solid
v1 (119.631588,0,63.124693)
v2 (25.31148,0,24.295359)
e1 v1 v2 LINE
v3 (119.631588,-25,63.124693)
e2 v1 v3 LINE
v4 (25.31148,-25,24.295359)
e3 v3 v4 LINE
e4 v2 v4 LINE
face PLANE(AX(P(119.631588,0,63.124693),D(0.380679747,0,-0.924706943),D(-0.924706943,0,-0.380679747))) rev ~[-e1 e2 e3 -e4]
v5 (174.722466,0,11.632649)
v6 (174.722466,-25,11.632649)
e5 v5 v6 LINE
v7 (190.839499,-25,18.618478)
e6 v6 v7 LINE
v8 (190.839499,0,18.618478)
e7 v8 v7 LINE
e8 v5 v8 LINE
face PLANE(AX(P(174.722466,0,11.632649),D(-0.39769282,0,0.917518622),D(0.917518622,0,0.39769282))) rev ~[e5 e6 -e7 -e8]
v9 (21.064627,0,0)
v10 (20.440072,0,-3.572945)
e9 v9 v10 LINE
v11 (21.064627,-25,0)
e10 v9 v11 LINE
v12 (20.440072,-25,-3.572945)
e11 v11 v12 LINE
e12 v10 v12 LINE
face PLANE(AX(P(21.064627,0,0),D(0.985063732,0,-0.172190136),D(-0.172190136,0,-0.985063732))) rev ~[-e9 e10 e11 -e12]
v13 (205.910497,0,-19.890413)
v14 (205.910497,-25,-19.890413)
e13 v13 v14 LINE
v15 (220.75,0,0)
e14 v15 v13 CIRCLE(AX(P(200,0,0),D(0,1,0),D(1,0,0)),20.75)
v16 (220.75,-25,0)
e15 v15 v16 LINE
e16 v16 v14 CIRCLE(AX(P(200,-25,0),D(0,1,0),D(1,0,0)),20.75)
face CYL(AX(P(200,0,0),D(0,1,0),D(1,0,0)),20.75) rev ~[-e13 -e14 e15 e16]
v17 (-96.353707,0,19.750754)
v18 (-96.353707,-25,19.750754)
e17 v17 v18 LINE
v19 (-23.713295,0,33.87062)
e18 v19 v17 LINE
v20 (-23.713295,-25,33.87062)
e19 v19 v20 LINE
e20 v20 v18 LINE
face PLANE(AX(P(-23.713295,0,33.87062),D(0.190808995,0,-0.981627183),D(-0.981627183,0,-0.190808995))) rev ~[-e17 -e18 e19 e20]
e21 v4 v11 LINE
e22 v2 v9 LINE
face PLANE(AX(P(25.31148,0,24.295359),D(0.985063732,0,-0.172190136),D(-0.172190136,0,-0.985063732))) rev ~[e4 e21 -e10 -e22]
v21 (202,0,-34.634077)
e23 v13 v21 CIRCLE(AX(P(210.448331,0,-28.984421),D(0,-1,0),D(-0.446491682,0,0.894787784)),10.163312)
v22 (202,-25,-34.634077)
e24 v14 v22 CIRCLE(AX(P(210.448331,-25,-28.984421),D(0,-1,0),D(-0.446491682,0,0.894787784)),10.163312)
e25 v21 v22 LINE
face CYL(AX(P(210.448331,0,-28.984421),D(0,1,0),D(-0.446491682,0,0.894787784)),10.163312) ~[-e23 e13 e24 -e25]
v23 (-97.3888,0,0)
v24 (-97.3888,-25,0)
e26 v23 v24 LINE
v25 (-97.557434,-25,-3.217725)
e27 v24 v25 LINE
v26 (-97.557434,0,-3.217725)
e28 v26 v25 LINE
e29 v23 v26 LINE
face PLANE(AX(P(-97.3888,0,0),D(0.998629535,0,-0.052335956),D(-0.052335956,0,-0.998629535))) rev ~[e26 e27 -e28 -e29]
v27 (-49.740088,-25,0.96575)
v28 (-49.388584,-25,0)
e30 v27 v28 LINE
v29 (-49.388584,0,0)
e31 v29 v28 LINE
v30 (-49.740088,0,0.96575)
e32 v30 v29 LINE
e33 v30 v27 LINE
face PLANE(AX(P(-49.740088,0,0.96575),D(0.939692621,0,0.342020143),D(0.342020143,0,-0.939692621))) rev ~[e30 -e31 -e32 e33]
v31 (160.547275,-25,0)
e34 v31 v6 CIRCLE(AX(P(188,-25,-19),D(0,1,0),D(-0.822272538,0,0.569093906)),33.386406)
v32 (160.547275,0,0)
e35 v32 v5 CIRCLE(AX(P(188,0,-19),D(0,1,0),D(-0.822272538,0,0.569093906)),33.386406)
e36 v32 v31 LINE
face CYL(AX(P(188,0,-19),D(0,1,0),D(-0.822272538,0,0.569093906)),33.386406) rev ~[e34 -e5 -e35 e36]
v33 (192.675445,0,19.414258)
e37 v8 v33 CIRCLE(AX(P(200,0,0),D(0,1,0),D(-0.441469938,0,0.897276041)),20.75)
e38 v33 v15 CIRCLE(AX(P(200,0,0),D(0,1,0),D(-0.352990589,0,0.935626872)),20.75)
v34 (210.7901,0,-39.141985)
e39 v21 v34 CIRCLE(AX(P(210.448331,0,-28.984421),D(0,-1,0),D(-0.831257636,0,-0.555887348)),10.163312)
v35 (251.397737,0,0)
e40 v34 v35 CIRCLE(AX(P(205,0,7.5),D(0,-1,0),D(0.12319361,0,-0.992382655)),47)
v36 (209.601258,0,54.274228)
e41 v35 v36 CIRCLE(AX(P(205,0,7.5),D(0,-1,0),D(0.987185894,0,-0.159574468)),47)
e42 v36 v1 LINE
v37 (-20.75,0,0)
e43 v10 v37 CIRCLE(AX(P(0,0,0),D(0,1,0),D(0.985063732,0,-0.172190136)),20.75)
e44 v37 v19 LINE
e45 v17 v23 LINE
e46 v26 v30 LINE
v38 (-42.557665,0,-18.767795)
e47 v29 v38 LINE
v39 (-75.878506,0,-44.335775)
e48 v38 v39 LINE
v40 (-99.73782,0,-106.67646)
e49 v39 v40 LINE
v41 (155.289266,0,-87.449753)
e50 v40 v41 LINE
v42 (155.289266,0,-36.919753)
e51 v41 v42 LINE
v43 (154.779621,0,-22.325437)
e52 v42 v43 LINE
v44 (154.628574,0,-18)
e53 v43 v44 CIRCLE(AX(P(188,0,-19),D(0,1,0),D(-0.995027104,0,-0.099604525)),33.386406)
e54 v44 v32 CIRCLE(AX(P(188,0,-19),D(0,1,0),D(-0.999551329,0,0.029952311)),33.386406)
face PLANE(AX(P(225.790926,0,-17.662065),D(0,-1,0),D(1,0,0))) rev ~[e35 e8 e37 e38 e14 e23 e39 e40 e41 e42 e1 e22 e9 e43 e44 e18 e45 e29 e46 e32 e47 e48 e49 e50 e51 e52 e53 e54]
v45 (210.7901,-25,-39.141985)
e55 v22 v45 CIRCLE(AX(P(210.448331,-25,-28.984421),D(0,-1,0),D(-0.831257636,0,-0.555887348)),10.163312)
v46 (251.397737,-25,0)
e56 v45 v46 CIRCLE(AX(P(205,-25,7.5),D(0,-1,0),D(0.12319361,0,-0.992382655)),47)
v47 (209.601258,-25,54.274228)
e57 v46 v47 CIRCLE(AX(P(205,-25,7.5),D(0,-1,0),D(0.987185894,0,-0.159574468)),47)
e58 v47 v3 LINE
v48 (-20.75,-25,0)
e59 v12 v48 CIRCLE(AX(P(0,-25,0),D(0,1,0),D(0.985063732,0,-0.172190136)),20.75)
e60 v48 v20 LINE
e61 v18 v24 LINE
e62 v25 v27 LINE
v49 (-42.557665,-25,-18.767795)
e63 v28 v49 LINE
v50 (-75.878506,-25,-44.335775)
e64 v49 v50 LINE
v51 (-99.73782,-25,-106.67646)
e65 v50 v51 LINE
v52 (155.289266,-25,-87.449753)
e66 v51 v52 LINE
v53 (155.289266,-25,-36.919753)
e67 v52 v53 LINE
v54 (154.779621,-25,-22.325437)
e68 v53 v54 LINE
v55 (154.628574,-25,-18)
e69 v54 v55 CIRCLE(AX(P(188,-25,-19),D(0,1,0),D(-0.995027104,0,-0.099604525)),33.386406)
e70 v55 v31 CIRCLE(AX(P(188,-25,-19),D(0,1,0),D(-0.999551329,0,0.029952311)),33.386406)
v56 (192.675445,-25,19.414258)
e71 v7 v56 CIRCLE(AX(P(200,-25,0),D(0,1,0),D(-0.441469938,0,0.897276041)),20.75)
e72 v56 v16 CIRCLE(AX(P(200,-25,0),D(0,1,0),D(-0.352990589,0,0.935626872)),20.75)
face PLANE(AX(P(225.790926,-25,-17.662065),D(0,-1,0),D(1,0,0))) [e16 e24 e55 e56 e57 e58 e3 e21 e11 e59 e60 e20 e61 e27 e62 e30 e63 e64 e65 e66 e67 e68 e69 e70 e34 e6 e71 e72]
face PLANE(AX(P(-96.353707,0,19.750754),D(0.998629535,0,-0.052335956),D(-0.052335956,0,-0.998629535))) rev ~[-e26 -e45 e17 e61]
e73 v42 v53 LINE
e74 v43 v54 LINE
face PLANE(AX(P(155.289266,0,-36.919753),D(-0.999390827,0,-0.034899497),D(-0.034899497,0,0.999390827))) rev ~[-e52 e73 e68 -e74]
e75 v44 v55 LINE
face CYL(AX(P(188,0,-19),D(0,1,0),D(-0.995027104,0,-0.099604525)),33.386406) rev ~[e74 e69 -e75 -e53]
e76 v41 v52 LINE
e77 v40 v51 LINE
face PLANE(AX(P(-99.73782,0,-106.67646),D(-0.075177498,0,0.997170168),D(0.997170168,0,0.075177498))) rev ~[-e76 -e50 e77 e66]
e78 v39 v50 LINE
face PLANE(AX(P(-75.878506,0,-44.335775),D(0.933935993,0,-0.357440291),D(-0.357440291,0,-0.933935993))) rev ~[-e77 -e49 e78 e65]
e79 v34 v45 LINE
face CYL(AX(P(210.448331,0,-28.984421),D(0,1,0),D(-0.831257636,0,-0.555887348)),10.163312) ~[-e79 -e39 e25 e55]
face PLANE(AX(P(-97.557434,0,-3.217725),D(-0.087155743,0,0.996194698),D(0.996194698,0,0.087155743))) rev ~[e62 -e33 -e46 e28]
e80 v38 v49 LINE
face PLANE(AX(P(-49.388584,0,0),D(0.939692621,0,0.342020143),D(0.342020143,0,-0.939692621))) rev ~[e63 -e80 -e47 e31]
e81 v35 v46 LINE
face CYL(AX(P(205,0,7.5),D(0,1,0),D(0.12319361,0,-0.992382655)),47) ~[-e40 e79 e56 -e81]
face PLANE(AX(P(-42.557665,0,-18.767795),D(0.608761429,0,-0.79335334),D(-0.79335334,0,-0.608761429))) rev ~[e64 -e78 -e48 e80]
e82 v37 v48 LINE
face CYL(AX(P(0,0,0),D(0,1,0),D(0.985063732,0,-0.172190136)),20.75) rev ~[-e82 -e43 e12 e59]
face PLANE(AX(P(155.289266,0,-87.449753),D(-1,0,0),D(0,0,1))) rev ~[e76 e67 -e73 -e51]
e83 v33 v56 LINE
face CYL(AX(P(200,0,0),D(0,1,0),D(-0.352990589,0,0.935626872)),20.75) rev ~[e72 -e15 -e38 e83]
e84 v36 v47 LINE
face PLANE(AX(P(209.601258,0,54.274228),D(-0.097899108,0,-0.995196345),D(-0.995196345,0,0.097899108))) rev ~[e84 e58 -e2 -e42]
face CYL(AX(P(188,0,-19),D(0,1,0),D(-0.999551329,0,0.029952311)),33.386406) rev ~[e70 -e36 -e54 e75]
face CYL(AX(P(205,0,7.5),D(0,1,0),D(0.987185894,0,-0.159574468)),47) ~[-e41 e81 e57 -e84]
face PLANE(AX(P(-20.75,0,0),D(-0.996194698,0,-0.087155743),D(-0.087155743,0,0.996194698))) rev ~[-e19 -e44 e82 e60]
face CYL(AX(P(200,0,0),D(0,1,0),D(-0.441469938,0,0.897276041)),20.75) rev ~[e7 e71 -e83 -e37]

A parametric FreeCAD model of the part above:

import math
import FreeCAD as App
import Part
import Sketcher
from FreeCAD import Vector
Q = App.Units.Quantity

doc = App.newDocument("Part")
body = doc.addObject("PartDesign::Body", "Body")

# Sketch on XZ plane
sketch1 = body.newObject("Sketcher::SketchObject", "Sketch")
sketch1.AttachmentSupport = (doc.getObject("XZ_Plane"), [""])
sketch1.MapMode = "FlatFace"
sketch1.addGeometry(Part.ArcOfCircle(Part.Circle(Vector(205, 7.5, 0), Vector(0, 0, 1), 47), math.radians(-83), math.radians(-9)), False)
sketch1.addGeometry(Part.ArcOfCircle(Part.Circle(Vector(205, 7.5, 0), Vector(0, 0, 1), 47), math.radians(-9), math.radians(84)), False)
sketch1.addGeometry(Part.LineSegment(Vector(209.6, 54.3, 0), Vector(119.6, 63.1, 0)), False)
sketch1.addGeometry(Part.LineSegment(Vector(119.6, 63.1, 0), Vector(25.3, 24.3, 0)), False)
sketch1.addGeometry(Part.LineSegment(Vector(25.3, 24.3, 0), Vector(21.1, 0, 0)), False)
sketch1.addGeometry(Part.LineSegment(Vector(21.1, 0, 0), Vector(20.4, -3.6, 0)), False)
sketch1.addGeometry(Part.ArcOfCircle(Part.Circle(Vector(0, 0, 0), Vector(0, 0, 1), 20.8), math.radians(180), math.radians(350)), False)
sketch1.addGeometry(Part.LineSegment(Vector(-20.8, 0, 0), Vector(-23.7, 33.9, 0)), False)
sketch1.addGeometry(Part.LineSegment(Vector(-23.7, 33.9, 0), Vector(-96.4, 19.8, 0)), False)
sketch1.addGeometry(Part.LineSegment(Vector(-96.4, 19.8, 0), Vector(-97.4, 0, 0)), False)
sketch1.addGeometry(Part.LineSegment(Vector(-97.4, 0, 0), Vector(-97.6, -3.2, 0)), False)
sketch1.addGeometry(Part.LineSegment(Vector(-97.6, -3.2, 0), Vector(-49.7, 1, 0)), False)
sketch1.addGeometry(Part.LineSegment(Vector(-49.7, 1, 0), Vector(-49.4, 0, 0)), False)
sketch1.addGeometry(Part.LineSegment(Vector(-49.4, 0, 0), Vector(-42.6, -18.8, 0)), False)
sketch1.addGeometry(Part.LineSegment(Vector(-42.6, -18.8, 0), Vector(-75.9, -44.3, 0)), False)
sketch1.addGeometry(Part.LineSegment(Vector(-75.9, -44.3, 0), Vector(-99.7, -106.7, 0)), False)
sketch1.addGeometry(Part.LineSegment(Vector(-99.7, -106.7, 0), Vector(155.3, -87.4, 0)), False)
sketch1.addGeometry(Part.LineSegment(Vector(155.3, -87.4, 0), Vector(155.3, -36.9, 0)), False)
sketch1.addGeometry(Part.LineSegment(Vector(155.3, -36.9, 0), Vector(154.8, -22.3, 0)), False)
sketch1.addGeometry(Part.ArcOfCircle(Part.Circle(Vector(188, -19, 0), Vector(0, 0, 1), 33.4), math.radians(178.28), math.radians(185.72)), False)
sketch1.addGeometry(Part.ArcOfCircle(Part.Circle(Vector(188, -19, 0), Vector(0, 0, 1), 33.4), math.radians(145), math.radians(178)), False)
sketch1.addGeometry(Part.ArcOfCircle(Part.Circle(Vector(188, -19, 0), Vector(0, 0, 1), 33.4), math.radians(113), math.radians(145)), False)
sketch1.addGeometry(Part.LineSegment(Vector(174.7, 11.6, 0), Vector(190.8, 18.6, 0)), False)
sketch1.addGeometry(Part.ArcOfCircle(Part.Circle(Vector(200, 0, 0), Vector(0, 0, 1), 20.8), math.radians(110.67), math.radians(116.2)), False)
sketch1.addGeometry(Part.ArcOfCircle(Part.Circle(Vector(200, 0, 0), Vector(0, 0, 1), 20.8), math.radians(0), math.radians(111)), False)
sketch1.addGeometry(Part.ArcOfCircle(Part.Circle(Vector(200, 0, 0), Vector(0, 0, 1), 20.8), math.radians(-73), math.radians(0)), False)
sketch1.addGeometry(Part.ArcOfCircle(Part.Circle(Vector(210.4, -29, 0), Vector(0, 0, 1), 10.2), math.radians(117), math.radians(214)), False)
sketch1.addGeometry(Part.ArcOfCircle(Part.Circle(Vector(210.4, -29, 0), Vector(0, 0, 1), 10.2), math.radians(-146), math.radians(-88)), False)
sketch1.addConstraint(Sketcher.Constraint("Tangent", 0, 2, 1, 1))
sketch1.addConstraint(Sketcher.Constraint("Tangent", 1, 2, 2, 1))
sketch1.addConstraint(Sketcher.Constraint("Coincident", 2, 2, 3, 1))
sketch1.addConstraint(Sketcher.Constraint("Coincident", 3, 2, 4, 1))
sketch1.addConstraint(Sketcher.Constraint("Coincident", 4, 2, 5, 1))
sketch1.addConstraint(Sketcher.Constraint("Tangent", 5, 2, 6, 2))
sketch1.addConstraint(Sketcher.Constraint("Coincident", 6, 1, 7, 1))
sketch1.addConstraint(Sketcher.Constraint("Coincident", 7, 2, 8, 1))
sketch1.addConstraint(Sketcher.Constraint("Coincident", 8, 2, 9, 1))
sketch1.addConstraint(Sketcher.Constraint("Coincident", 9, 2, 10, 1))
sketch1.addConstraint(Sketcher.Constraint("Coincident", 10, 2, 11, 1))
sketch1.addConstraint(Sketcher.Constraint("Coincident", 11, 2, 12, 1))
sketch1.addConstraint(Sketcher.Constraint("Coincident", 12, 2, 13, 1))
sketch1.addConstraint(Sketcher.Constraint("Coincident", 13, 2, 14, 1))
sketch1.addConstraint(Sketcher.Constraint("Coincident", 14, 2, 15, 1))
sketch1.addConstraint(Sketcher.Constraint("Coincident", 15, 2, 16, 1))
sketch1.addConstraint(Sketcher.Constraint("Coincident", 16, 2, 17, 1))
sketch1.addConstraint(Sketcher.Constraint("Coincident", 17, 2, 18, 1))
sketch1.addConstraint(Sketcher.Constraint("Coincident", 18, 2, 19, 2))
sketch1.addConstraint(Sketcher.Constraint("Tangent", 19, 1, 20, 2))
sketch1.addConstraint(Sketcher.Constraint("Tangent", 20, 1, 21, 2))
sketch1.addConstraint(Sketcher.Constraint("Tangent", 21, 1, 22, 1))
sketch1.addConstraint(Sketcher.Constraint("Coincident", 22, 2, 23, 2))
sketch1.addConstraint(Sketcher.Constraint("Tangent", 23, 1, 24, 2))
sketch1.addConstraint(Sketcher.Constraint("Tangent", 24, 1, 25, 2))
sketch1.addConstraint(Sketcher.Constraint("Coincident", 25, 1, 26, 1))
sketch1.addConstraint(Sketcher.Constraint("Tangent", 26, 2, 27, 1))
sketch1.addConstraint(Sketcher.Constraint("Coincident", 27, 2, 0, 1))
sketch1.addConstraint(Sketcher.Constraint("Vertical", 17))
sketch1.addConstraint(Sketcher.Constraint("Coincident", 6, 3, -1, 1))
sketch1.addConstraint(Sketcher.Constraint("Coincident", 21, 3, 19, 3))
sketch1.addConstraint(Sketcher.Constraint("Coincident", 25, 3, 23, 3))
sketch1.addConstraint(Sketcher.Constraint("Equal", 0, 1))
sketch1.addConstraint(Sketcher.Constraint("Equal", 6, 23))
sketch1.addConstraint(Sketcher.Constraint("Equal", 26, 27))
sketch1.addConstraint(Sketcher.Constraint("PointOnObject", 23, 3, -1))
sketch1.addConstraint(Sketcher.Constraint("PointOnObject", 0, 2, -1))
sketch1.addConstraint(Sketcher.Constraint("PointOnObject", 4, 2, -1))
sketch1.addConstraint(Sketcher.Constraint("PointOnObject", 6, 1, -1))
sketch1.addConstraint(Sketcher.Constraint("PointOnObject", 9, 2, -1))
sketch1.addConstraint(Sketcher.Constraint("PointOnObject", 12, 2, -1))
sketch1.addConstraint(Sketcher.Constraint("PointOnObject", 20, 1, -1))
sketch1.addConstraint(Sketcher.Constraint("PointOnObject", 24, 1, -1))
sketch1.addConstraint(Sketcher.Constraint("Parallel", 4, 5))
sketch1.addConstraint(Sketcher.Constraint("Parallel", 9, 10))
sketch1.addConstraint(Sketcher.Constraint("Perpendicular", 7, 11))
sketch1.addConstraint(Sketcher.Constraint("Parallel", 12, 13))
sketch1.addConstraint(Sketcher.Constraint("Radius", 0, 47.0))
sketch1.addConstraint(Sketcher.Constraint("Angle", 7, Q("95 deg")))
sketch1.addConstraint(Sketcher.Constraint("Angle", 8, Q("-169 deg")))
sketch1.addConstraint(Sketcher.Constraint("Angle", 9, Q("-93 deg")))
sketch1.addConstraint(Sketcher.Constraint("Angle", 12, Q("-70 deg")))
sketch1.addConstraint(Sketcher.Constraint("Angle", 18, Q("92 deg")))
sketch1.addConstraint(Sketcher.Constraint("Radius", 6, 20.75))
sketch1.addConstraint(Sketcher.Constraint("Distance", 3, 102.0))
sketch1.addConstraint(Sketcher.Constraint("Distance", 7, 34.0))
sketch1.addConstraint(Sketcher.Constraint("Distance", 8, 74.0))
sketch1.addConstraint(Sketcher.Constraint("Distance", 11, 48.0))
sketch1.addConstraint(Sketcher.Constraint("Distance", 14, 42.0))
sketch1.addConstraint(Sketcher.Constraint("DistanceX", -1, 1, 0, 3, 205.0))
sketch1.addConstraint(Sketcher.Constraint("DistanceX", -1, 1, 19, 3, 188.0))
sketch1.addConstraint(Sketcher.Constraint("DistanceY", 19, 3, -1, 1, 19.0))
sketch1.addConstraint(Sketcher.Constraint("DistanceX", -1, 1, 23, 3, 200.0))
sketch1.addConstraint(Sketcher.Constraint("DistanceY", 19, 1, -1, 1, 18.0))
sketch1.addConstraint(Sketcher.Constraint("DistanceX", -1, 1, 26, 2, 202.0))
sketch1.addConstraint(Sketcher.Constraint("Angle", 14, Q("-142.5 deg")))
sketch1.addConstraint(Sketcher.Constraint("DistanceY", 17, 1, 17, 2, 50.53))
sketch1.addConstraint(Sketcher.Constraint("DistanceY", -1, 1, 0, 3, 7.5))
sketch1.addConstraint(Sketcher.Constraint("Radius", 19, 33.386406))
sketch1.addConstraint(Sketcher.Constraint("Radius", 26, 10.163312))
sketch1.addConstraint(Sketcher.Constraint("DistanceX", -1, 1, 22, 2, 190.839499))
sketch1.addConstraint(Sketcher.Constraint("DistanceX", -1, 1, 27, 2, 210.7901))
sketch1.addConstraint(Sketcher.Constraint("DistanceY", 5, 2, 8, 2, 23.323699))
sketch1.addConstraint(Sketcher.Constraint("Distance", 2, 90.403939))
sketch1.addConstraint(Sketcher.Constraint("Distance", 10, 3.222141))
sketch1.addConstraint(Sketcher.Constraint("Distance", 13, 19.97227))
sketch1.addConstraint(Sketcher.Constraint("Distance", 15, 66.75049))
sketch1.addConstraint(Sketcher.Constraint("Distance", 16, 255.750818))
sketch1.addConstraint(Sketcher.Constraint("DistanceX", -1, 1, 26, 3, 210.448331))
sketch1.addConstraint(Sketcher.Constraint("DistanceX", -1, 1, 1, 2, 209.601258))
sketch1.addConstraint(Sketcher.Constraint("DistanceX", 15, 2, -1, 1, 99.73782))
sketch1.addConstraint(Sketcher.Constraint("DistanceX", -1, 1, 18, 2, 154.779621))
sketch1.addConstraint(Sketcher.Constraint("DistanceY", 22, 2, 23, 1, 0.79578))
pad1 = body.newObject("PartDesign::Pad", "Pad")
pad1.Profile = sketch1
pad1.Length = 25

doc.recompute()
